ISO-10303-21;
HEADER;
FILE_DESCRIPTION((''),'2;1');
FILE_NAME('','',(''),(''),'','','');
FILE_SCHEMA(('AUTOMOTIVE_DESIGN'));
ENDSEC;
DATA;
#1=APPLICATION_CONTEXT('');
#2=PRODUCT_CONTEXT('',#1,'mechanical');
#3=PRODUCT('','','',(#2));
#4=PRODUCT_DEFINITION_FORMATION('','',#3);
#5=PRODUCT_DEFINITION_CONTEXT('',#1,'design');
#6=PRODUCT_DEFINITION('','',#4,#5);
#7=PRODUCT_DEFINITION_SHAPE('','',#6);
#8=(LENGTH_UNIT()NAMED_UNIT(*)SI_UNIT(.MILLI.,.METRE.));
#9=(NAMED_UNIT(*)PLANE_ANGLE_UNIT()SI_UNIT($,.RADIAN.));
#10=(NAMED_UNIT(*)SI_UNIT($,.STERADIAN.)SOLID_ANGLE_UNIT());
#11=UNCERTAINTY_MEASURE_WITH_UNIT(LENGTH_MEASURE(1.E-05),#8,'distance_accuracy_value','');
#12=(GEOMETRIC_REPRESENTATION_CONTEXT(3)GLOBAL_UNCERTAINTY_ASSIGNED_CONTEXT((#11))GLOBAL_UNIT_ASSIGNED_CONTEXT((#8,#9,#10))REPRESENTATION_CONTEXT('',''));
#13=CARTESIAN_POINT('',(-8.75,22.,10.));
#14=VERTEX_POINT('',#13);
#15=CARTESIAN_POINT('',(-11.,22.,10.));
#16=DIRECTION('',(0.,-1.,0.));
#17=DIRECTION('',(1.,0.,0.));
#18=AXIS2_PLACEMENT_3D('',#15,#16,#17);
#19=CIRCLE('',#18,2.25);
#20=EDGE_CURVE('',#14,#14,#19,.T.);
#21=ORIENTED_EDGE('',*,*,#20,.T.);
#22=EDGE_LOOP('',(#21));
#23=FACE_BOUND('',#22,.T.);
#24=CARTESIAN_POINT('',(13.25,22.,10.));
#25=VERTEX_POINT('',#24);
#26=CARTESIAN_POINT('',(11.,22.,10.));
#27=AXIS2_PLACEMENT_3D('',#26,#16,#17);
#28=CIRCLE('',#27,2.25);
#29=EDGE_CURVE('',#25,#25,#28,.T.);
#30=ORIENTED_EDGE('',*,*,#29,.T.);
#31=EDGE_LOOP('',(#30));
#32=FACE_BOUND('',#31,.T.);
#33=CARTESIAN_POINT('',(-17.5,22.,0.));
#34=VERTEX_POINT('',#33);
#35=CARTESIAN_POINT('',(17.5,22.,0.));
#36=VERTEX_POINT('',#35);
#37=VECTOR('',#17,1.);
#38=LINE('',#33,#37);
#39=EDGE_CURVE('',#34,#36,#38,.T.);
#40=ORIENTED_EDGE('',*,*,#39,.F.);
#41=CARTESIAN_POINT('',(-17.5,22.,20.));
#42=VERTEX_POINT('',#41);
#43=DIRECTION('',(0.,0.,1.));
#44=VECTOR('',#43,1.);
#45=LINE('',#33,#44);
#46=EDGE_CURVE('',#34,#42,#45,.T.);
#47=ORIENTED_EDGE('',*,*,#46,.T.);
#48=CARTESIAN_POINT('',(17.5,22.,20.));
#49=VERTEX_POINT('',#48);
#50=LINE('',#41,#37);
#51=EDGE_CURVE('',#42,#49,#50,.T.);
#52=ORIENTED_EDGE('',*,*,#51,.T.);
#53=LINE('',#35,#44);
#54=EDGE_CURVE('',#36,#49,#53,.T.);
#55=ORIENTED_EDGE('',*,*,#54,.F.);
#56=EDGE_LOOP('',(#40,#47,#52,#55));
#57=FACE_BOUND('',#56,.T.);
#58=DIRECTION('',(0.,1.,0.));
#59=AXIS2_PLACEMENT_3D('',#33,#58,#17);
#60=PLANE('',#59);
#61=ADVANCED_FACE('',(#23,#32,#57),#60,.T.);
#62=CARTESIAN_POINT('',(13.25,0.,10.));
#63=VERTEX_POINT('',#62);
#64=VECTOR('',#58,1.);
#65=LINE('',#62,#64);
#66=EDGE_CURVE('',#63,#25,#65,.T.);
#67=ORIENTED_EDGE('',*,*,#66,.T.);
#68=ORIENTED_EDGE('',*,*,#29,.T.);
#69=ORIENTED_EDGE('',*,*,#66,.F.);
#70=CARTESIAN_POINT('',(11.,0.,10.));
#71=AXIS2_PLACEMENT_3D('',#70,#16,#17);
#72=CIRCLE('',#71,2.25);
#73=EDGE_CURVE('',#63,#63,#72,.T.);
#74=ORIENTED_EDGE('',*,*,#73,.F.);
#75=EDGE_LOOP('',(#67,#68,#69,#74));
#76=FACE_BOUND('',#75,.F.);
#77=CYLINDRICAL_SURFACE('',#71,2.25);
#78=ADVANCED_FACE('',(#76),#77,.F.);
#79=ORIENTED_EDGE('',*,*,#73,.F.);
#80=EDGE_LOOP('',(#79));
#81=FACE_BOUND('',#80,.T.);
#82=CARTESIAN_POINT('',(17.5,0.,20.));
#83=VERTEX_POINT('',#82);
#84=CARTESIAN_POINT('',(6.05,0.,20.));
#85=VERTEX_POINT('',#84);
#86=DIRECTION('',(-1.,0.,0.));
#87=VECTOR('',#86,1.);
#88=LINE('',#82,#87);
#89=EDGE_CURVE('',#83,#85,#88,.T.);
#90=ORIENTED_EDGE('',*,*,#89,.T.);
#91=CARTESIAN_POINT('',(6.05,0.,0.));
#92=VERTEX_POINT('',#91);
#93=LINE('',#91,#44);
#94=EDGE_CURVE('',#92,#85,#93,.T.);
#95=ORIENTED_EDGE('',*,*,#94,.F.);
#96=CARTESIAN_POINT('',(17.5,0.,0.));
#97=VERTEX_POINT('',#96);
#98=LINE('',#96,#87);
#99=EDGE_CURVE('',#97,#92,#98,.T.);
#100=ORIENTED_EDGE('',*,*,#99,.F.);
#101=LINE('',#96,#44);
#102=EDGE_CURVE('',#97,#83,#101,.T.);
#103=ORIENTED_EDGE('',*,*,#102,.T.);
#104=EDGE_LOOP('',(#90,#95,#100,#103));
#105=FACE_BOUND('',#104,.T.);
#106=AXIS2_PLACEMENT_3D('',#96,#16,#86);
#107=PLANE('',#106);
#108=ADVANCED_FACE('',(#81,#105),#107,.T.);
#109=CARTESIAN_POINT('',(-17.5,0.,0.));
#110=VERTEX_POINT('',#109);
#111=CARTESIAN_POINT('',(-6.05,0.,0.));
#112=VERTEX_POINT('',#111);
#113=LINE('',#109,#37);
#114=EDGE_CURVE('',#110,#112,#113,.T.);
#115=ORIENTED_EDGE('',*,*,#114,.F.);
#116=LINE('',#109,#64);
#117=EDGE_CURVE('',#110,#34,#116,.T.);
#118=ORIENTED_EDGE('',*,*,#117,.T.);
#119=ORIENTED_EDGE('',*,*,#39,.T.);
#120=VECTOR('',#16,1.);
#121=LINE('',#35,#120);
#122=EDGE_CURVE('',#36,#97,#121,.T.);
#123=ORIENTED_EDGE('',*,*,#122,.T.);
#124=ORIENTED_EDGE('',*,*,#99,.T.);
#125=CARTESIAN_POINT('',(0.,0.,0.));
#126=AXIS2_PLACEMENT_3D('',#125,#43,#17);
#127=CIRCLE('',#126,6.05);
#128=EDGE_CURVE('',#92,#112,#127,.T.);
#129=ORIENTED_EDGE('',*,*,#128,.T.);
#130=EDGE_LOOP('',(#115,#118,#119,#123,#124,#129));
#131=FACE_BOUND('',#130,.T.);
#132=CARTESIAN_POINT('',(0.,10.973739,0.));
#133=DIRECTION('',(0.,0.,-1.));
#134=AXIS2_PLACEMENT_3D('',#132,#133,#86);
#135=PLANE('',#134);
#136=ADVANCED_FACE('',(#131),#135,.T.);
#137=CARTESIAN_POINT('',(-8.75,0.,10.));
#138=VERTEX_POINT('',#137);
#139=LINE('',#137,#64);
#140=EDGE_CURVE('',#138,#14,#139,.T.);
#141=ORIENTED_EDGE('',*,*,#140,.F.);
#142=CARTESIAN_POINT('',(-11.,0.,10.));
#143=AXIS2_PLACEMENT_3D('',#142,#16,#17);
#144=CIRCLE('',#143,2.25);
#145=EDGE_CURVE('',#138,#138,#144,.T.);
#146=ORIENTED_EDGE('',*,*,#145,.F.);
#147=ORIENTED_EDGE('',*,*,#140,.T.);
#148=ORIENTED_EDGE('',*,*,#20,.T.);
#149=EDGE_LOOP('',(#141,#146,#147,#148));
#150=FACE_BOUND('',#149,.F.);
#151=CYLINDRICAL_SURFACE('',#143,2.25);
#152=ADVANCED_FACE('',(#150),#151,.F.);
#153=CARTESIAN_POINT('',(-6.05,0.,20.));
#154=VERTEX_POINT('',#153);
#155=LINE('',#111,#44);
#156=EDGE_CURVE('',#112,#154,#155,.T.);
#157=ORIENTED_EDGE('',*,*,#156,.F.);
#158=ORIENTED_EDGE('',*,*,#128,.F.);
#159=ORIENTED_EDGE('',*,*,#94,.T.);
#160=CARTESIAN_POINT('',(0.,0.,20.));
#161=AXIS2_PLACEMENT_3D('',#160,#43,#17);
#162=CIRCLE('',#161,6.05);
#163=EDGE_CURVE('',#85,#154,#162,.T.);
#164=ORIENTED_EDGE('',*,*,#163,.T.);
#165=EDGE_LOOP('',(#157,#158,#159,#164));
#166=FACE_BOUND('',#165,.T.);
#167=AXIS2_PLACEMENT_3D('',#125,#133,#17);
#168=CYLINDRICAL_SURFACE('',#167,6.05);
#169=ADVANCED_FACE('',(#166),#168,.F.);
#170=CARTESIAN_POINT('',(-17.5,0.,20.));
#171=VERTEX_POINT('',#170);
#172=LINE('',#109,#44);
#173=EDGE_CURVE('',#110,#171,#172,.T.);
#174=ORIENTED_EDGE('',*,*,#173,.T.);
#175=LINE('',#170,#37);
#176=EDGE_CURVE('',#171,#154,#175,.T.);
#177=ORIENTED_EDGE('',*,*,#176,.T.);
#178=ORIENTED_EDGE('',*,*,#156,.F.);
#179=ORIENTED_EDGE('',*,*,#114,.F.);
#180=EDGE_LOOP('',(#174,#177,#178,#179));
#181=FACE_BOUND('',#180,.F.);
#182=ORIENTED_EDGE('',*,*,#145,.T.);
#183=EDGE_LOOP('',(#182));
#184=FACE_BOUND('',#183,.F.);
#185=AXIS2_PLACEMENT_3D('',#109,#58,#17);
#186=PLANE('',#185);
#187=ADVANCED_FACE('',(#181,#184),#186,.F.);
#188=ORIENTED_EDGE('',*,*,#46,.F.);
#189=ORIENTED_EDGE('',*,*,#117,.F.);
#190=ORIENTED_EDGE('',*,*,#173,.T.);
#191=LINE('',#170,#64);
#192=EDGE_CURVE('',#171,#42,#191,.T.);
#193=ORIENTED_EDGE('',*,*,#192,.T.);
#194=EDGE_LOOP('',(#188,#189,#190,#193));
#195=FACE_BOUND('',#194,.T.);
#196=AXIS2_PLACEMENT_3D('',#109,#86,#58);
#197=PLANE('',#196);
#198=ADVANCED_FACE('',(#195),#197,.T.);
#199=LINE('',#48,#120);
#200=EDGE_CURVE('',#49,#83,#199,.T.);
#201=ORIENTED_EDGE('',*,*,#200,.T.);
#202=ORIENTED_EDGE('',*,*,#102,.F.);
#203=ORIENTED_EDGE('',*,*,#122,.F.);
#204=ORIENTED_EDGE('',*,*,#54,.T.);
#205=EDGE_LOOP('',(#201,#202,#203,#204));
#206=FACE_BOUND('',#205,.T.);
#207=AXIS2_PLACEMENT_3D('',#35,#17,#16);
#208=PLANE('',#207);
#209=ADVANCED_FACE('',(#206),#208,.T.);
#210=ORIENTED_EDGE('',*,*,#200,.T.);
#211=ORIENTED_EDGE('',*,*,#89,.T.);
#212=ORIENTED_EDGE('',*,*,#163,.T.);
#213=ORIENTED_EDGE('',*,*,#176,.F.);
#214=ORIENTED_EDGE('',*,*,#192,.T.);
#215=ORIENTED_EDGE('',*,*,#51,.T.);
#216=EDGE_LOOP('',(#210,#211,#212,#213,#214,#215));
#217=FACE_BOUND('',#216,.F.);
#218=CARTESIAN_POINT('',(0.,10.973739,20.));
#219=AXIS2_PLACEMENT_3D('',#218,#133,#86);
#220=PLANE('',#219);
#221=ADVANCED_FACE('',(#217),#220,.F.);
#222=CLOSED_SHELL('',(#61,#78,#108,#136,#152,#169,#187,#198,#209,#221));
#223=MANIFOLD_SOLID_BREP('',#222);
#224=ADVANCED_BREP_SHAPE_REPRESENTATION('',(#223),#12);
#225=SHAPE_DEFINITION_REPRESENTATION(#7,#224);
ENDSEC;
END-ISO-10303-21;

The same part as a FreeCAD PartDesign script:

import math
import FreeCAD as App
import Part
import Sketcher

V = App.Vector
Q = App.Units.Quantity

doc = App.newDocument("Part")
body = doc.addObject("PartDesign::Body", "Body")

sketch1 = body.newObject("Sketcher::SketchObject", "Sketch")
sketch1.AttachmentSupport = (doc.getObject("XY_Plane"), [""])
sketch1.MapMode = "FlatFace"
sketch1.addGeometry(Part.LineSegment(V(17.5, 22, 0), V(-17.5, 22, 0)), False)
sketch1.addGeometry(Part.LineSegment(V(-17.5, 22, 0), V(-17.5, 0, 0)), False)
sketch1.addGeometry(Part.LineSegment(V(-17.5, 0, 0), V(-6.05, 0, 0)), False)
sketch1.addGeometry(Part.ArcOfCircle(Part.Circle(V(0, 0, 0), V(0, 0, 1), 6.05), math.radians(0), math.radians(180)), False)
sketch1.addGeometry(Part.LineSegment(V(6.05, 0, 0), V(17.5, 0, 0)), False)
sketch1.addGeometry(Part.LineSegment(V(17.5, 0, 0), V(17.5, 22, 0)), False)
sketch1.addConstraint(Sketcher.Constraint("Coincident", 0, 2, 1, 1))
sketch1.addConstraint(Sketcher.Constraint("Coincident", 1, 2, 2, 1))
sketch1.addConstraint(Sketcher.Constraint("Coincident", 2, 2, 3, 2))
sketch1.addConstraint(Sketcher.Constraint("Coincident", 3, 1, 4, 1))
sketch1.addConstraint(Sketcher.Constraint("Coincident", 4, 2, 5, 1))
sketch1.addConstraint(Sketcher.Constraint("Coincident", 5, 2, 0, 1))
sketch1.addConstraint(Sketcher.Constraint("Horizontal", 0))
sketch1.addConstraint(Sketcher.Constraint("Vertical", 1))
sketch1.addConstraint(Sketcher.Constraint("Horizontal", 2))
sketch1.addConstraint(Sketcher.Constraint("Horizontal", 4))
sketch1.addConstraint(Sketcher.Constraint("Vertical", 5))
sketch1.addConstraint(Sketcher.Constraint("Coincident", 3, 3, -1, 1))
sketch1.addConstraint(Sketcher.Constraint("Symmetric", 1, 2, 4, 2, -1, 1))
sketch1.addConstraint(Sketcher.Constraint("PointOnObject", 1, 2, -1))
sketch1.addConstraint(Sketcher.Constraint("DistanceX", 0, 2, 0, 1, Q("35 mm")))
sketch1.addConstraint(Sketcher.Constraint("DistanceY", 1, 2, 1, 1, Q("22 mm")))
sketch1.addConstraint(Sketcher.Constraint("Radius", 3, Q("6.05 mm")))
pad1 = body.newObject("PartDesign::Pad", "Pad")
pad1.Profile = sketch1
pad1.Length = 20

sketch2 = body.newObject("Sketcher::SketchObject", "Sketch001")
sketch2.AttachmentSupport = (doc.getObject("XZ_Plane"), [""])
sketch2.MapMode = "FlatFace"
sketch2.addGeometry(Part.Circle(V(-11, 10, 0), V(0, 0, 1), 2.25), False)
sketch2.addGeometry(Part.Circle(V(11, 10, 0), V(0, 0, 1), 2.25), False)
sketch2.addConstraint(Sketcher.Constraint("Equal", 0, 1))
sketch2.addConstraint(Sketcher.Constraint("Symmetric", 0, 3, 1, 3, -2))
sketch2.addConstraint(Sketcher.Constraint("Diameter", 0, Q("4.5 mm")))
sketch2.addConstraint(Sketcher.Constraint("DistanceX", 0, 3, -1, 1, Q("11 mm")))
sketch2.addConstraint(Sketcher.Constraint("DistanceY", -1, 1, 0, 3, Q("10 mm")))
pocket1 = body.newObject("PartDesign::Pocket", "Pocket")
pocket1.Profile = sketch2
pocket1.Type = "ThroughAll"

doc.recompute()
